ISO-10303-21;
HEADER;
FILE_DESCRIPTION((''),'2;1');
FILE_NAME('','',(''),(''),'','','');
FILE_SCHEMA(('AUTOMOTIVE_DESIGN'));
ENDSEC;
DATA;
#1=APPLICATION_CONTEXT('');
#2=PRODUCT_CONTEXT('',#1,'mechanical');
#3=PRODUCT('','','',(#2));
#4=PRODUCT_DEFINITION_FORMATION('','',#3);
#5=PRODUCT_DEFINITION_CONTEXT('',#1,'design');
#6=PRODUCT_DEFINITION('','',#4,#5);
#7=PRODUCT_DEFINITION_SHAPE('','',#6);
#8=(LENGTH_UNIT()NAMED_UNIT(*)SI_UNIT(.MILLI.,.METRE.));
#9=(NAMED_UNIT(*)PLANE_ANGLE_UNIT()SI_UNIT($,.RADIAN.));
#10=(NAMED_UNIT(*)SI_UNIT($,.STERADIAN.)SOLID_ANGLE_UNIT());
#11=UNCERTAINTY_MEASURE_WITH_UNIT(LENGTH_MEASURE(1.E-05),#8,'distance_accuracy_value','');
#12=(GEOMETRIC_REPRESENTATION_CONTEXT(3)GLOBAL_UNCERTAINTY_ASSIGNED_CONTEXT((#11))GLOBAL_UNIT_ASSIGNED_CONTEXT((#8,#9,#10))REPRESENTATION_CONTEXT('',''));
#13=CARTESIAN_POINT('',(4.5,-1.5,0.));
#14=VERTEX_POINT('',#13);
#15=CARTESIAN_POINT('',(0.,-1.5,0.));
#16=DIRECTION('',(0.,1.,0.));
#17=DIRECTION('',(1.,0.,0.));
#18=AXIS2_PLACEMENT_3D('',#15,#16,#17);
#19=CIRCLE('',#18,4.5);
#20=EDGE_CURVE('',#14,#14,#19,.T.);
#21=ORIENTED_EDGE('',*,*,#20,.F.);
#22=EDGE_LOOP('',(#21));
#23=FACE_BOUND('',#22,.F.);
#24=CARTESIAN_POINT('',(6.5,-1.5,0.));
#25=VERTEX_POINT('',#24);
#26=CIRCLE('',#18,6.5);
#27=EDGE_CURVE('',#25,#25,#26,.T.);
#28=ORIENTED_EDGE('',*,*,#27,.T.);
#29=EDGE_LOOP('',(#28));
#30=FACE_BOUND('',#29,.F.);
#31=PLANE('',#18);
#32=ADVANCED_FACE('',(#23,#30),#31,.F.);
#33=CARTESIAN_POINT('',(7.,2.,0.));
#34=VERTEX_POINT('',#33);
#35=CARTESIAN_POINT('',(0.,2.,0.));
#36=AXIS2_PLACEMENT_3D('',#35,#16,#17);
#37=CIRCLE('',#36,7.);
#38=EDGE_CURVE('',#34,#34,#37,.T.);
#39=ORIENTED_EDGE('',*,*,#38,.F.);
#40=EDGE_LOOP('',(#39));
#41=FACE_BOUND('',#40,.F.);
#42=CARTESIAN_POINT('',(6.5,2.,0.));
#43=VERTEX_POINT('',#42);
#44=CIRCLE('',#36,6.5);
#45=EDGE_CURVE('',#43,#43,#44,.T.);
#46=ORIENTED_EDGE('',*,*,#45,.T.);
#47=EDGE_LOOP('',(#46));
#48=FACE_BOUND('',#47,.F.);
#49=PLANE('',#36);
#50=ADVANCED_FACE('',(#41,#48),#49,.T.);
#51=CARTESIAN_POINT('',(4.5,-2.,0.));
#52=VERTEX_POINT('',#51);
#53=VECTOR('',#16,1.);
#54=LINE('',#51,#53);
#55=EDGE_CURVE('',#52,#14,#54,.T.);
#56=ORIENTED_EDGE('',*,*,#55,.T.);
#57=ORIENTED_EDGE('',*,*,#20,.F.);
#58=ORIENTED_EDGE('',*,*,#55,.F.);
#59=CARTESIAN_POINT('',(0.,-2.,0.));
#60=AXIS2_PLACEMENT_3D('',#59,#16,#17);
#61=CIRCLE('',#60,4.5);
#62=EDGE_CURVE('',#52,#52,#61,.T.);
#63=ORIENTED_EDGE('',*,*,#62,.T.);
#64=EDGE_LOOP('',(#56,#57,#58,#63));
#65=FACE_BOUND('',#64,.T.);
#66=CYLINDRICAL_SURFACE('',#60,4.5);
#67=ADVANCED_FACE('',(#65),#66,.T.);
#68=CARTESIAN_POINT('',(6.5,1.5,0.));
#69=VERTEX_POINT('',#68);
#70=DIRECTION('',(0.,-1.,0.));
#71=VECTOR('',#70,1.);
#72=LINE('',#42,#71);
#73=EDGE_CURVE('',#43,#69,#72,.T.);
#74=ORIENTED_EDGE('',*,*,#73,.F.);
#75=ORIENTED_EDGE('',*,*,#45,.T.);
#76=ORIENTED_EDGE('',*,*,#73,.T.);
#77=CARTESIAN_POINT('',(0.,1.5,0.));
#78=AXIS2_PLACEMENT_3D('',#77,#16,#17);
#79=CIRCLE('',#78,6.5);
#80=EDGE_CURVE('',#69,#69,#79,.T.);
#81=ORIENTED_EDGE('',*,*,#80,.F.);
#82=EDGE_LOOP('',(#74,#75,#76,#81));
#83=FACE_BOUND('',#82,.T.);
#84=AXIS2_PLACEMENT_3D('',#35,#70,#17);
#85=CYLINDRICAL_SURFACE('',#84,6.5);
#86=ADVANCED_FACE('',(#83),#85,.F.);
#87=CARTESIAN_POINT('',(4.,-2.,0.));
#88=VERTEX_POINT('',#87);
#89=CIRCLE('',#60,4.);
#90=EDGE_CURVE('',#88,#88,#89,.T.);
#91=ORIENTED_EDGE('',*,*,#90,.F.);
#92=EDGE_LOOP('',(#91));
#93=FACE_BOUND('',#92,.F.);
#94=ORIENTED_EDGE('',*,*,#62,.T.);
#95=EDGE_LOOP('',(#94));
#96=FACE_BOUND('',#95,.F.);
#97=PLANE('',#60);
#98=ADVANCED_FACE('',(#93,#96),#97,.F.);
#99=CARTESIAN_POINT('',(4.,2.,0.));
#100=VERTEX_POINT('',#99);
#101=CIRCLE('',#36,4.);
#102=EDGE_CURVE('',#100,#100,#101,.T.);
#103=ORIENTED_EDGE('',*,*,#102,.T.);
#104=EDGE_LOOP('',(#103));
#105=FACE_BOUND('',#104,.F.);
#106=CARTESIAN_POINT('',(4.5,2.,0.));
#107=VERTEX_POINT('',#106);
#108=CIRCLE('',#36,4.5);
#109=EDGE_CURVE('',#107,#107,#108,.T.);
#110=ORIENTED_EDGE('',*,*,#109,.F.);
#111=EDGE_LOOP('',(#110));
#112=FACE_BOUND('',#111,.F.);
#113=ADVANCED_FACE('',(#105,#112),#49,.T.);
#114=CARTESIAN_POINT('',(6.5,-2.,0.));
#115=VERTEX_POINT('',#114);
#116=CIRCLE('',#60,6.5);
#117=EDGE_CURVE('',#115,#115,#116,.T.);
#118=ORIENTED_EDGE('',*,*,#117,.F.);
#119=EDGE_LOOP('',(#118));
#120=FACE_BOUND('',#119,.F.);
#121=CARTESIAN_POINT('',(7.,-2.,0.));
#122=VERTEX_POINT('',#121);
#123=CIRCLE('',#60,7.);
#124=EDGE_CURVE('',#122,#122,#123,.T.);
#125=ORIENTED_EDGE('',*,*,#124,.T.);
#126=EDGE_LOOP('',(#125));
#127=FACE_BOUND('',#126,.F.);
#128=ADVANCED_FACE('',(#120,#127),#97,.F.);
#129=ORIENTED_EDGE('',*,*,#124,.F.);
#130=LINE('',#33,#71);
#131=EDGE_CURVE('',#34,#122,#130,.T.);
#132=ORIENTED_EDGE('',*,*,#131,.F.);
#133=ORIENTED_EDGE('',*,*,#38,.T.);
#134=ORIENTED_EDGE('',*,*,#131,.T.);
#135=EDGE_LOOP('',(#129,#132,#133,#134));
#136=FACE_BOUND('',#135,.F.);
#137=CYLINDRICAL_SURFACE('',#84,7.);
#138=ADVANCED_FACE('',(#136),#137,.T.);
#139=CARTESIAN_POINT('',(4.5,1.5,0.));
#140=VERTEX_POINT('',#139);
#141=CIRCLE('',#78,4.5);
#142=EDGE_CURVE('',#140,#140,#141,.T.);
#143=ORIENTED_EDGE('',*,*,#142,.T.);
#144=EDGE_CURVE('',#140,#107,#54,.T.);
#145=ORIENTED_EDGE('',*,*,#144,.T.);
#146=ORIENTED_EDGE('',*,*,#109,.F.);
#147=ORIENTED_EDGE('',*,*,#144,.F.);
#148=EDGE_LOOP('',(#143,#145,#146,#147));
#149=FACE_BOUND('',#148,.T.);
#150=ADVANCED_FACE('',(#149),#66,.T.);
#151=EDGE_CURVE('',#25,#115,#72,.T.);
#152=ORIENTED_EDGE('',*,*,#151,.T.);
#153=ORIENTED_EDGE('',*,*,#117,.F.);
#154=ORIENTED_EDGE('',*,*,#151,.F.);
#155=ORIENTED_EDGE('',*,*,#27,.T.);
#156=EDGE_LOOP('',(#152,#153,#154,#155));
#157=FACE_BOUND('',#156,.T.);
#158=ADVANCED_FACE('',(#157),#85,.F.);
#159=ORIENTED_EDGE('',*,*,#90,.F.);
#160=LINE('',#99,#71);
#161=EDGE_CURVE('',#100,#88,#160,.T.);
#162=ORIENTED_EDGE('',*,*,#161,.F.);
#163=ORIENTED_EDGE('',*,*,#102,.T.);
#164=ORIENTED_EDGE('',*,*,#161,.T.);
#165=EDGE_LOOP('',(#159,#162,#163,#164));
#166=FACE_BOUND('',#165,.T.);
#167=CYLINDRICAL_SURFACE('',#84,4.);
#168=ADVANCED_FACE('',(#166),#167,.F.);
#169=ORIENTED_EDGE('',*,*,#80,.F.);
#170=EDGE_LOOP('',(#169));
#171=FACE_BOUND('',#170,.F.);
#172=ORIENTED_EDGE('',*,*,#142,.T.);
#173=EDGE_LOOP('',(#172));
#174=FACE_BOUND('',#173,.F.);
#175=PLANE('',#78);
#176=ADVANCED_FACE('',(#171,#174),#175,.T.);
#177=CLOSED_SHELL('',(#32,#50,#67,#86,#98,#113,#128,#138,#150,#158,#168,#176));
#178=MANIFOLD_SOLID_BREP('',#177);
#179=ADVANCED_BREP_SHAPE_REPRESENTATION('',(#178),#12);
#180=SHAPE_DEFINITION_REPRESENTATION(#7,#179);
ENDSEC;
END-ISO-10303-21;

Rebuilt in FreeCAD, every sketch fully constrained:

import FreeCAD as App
import Part
import Sketcher

V = App.Vector
Q = App.Units.Quantity

doc = App.newDocument("Part")
body = doc.addObject("PartDesign::Body", "Body")

sketch1 = body.newObject("Sketcher::SketchObject", "Sketch")
sketch1.AttachmentSupport = (doc.getObject("XY_Plane"), [""])
sketch1.MapMode = "FlatFace"
sketch1.addGeometry(Part.LineSegment(V(6.5, -2, 0), V(7, -2, 0)), False)
sketch1.addGeometry(Part.LineSegment(V(7, -2, 0), V(7, 2, 0)), False)
sketch1.addGeometry(Part.LineSegment(V(7, 2, 0), V(6.5, 2, 0)), False)
sketch1.addGeometry(Part.LineSegment(V(6.5, 2, 0), V(6.5, 1.5, 0)), False)
sketch1.addGeometry(Part.LineSegment(V(6.5, 1.5, 0), V(4.5, 1.5, 0)), False)
sketch1.addGeometry(Part.LineSegment(V(4.5, 1.5, 0), V(4.5, 2, 0)), False)
sketch1.addGeometry(Part.LineSegment(V(4.5, 2, 0), V(4, 2, 0)), False)
sketch1.addGeometry(Part.LineSegment(V(4, 2, 0), V(4, -2, 0)), False)
sketch1.addGeometry(Part.LineSegment(V(4, -2, 0), V(4.5, -2, 0)), False)
sketch1.addGeometry(Part.LineSegment(V(4.5, -2, 0), V(4.5, -1.5, 0)), False)
sketch1.addGeometry(Part.LineSegment(V(4.5, -1.5, 0), V(6.5, -1.5, 0)), False)
sketch1.addGeometry(Part.LineSegment(V(6.5, -1.5, 0), V(6.5, -2, 0)), False)
sketch1.addConstraint(Sketcher.Constraint("Coincident", 0, 2, 1, 1))
sketch1.addConstraint(Sketcher.Constraint("Coincident", 1, 2, 2, 1))
sketch1.addConstraint(Sketcher.Constraint("Coincident", 2, 2, 3, 1))
sketch1.addConstraint(Sketcher.Constraint("Coincident", 3, 2, 4, 1))
sketch1.addConstraint(Sketcher.Constraint("Coincident", 4, 2, 5, 1))
sketch1.addConstraint(Sketcher.Constraint("Coincident", 5, 2, 6, 1))
sketch1.addConstraint(Sketcher.Constraint("Coincident", 6, 2, 7, 1))
sketch1.addConstraint(Sketcher.Constraint("Coincident", 7, 2, 8, 1))
sketch1.addConstraint(Sketcher.Constraint("Coincident", 8, 2, 9, 1))
sketch1.addConstraint(Sketcher.Constraint("Coincident", 9, 2, 10, 1))
sketch1.addConstraint(Sketcher.Constraint("Coincident", 10, 2, 11, 1))
sketch1.addConstraint(Sketcher.Constraint("Coincident", 11, 2, 0, 1))
sketch1.addConstraint(Sketcher.Constraint("Horizontal", 0))
sketch1.addConstraint(Sketcher.Constraint("Vertical", 1))
sketch1.addConstraint(Sketcher.Constraint("Horizontal", 2))
sketch1.addConstraint(Sketcher.Constraint("Vertical", 3))
sketch1.addConstraint(Sketcher.Constraint("Horizontal", 4))
sketch1.addConstraint(Sketcher.Constraint("Vertical", 5))
sketch1.addConstraint(Sketcher.Constraint("Horizontal", 6))
sketch1.addConstraint(Sketcher.Constraint("Vertical", 7))
sketch1.addConstraint(Sketcher.Constraint("Horizontal", 8))
sketch1.addConstraint(Sketcher.Constraint("Vertical", 9))
sketch1.addConstraint(Sketcher.Constraint("Horizontal", 10))
sketch1.addConstraint(Sketcher.Constraint("Vertical", 11))
sketch1.addConstraint(Sketcher.Constraint("Symmetric", 5, 2, 8, 2, -1))
sketch1.addConstraint(Sketcher.Constraint("Symmetric", 3, 2, 10, 2, -1))
sketch1.addConstraint(Sketcher.Constraint("Horizontal", 2, 2, 5, 2))
sketch1.addConstraint(Sketcher.Constraint("Horizontal", 0, 2, 7, 2))
sketch1.addConstraint(Sketcher.Constraint("Equal", 2, 6))
sketch1.addConstraint(Sketcher.Constraint("Equal", 8, 3))
sketch1.addConstraint(Sketcher.Constraint("DistanceY", 1, 1, 1, 2, Q("4 mm")))
sketch1.addConstraint(Sketcher.Constraint("DistanceX", 0, 1, 0, 2, Q("0.5 mm")))
sketch1.addConstraint(Sketcher.Constraint("DistanceX", -1, 1, 6, 2, Q("4 mm")))
sketch1.addConstraint(Sketcher.Constraint("DistanceX", 4, 2, 4, 1, Q("2 mm")))
revolution = body.newObject("PartDesign::Revolution", "Revolution")
revolution.Profile = sketch1
revolution.ReferenceAxis = (sketch1, ["V_Axis"])
revolution.Angle = 360

doc.recompute()
